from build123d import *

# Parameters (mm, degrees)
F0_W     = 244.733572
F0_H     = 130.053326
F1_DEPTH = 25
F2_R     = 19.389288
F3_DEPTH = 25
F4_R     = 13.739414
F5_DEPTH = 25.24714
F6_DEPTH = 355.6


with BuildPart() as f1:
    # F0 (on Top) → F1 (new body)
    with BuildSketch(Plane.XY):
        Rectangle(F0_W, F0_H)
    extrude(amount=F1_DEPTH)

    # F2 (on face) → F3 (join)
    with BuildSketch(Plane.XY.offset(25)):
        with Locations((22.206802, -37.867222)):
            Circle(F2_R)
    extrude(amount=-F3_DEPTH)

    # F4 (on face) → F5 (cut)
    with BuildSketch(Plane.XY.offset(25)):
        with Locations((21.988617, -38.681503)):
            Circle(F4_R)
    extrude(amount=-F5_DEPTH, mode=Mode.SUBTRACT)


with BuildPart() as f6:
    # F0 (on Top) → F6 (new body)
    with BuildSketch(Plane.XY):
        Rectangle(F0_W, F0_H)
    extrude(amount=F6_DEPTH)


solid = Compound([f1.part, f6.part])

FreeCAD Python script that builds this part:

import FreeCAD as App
import Part
import Sketcher


def add_polygon(sketch, points):
    """Adds a closed chain of lines whose ends are joined by coincident constraints."""
    first, n = sketch.GeometryCount, len(points)
    for a, b in zip(points, points[1:] + points[:1]):
        sketch.addGeometry(Part.LineSegment(App.Vector(*a, 0), App.Vector(*b, 0)), False)
    for i in range(n):
        sketch.addConstraint(Sketcher.Constraint("Coincident", first + i, 2, first + (i + 1) % n, 1))

doc = App.newDocument("Part")
body = doc.addObject("PartDesign::Body", "Body")

sketch1 = body.newObject("Sketcher::SketchObject", "Sketch")
sketch1.AttachmentSupport = (doc.getObject("XY_Plane"), [""])
sketch1.MapMode = "FlatFace"
add_polygon(sketch1, [(-122.366786, 65.026663), (-122.366786, -65.026663), (122.366786, -65.026663), (122.366786, 65.026663)])
sketch1.addConstraint([
    Sketcher.Constraint("Vertical", 0),
    Sketcher.Constraint("Horizontal", 1),
    Sketcher.Constraint("Vertical", 2),
    Sketcher.Constraint("Horizontal", 3),
    Sketcher.Constraint("Symmetric", 0, 2, 2, 2, -1, 1),
    Sketcher.Constraint("DistanceX", 1, 1, 1, 2, 244.733572),
    Sketcher.Constraint("DistanceY", 0, 2, 0, 1, 130.053326),
])
pad1 = body.newObject("PartDesign::Pad", "Pad")
pad1.Profile = sketch1
pad1.Length = 25

sketch2 = body.newObject("Sketcher::SketchObject", "Sketch001")
sketch2.AttachmentSupport = (doc.getObject("XY_Plane"), [""])
sketch2.MapMode = "FlatFace"
sketch2.AttachmentOffset = App.Placement(App.Vector(0, 0, 25), App.Rotation())
sketch2.addGeometry(Part.Circle(App.Vector(22.206802, -37.867222, 0), App.Vector(0, 0, 1), 19.389288), False)
sketch2.addConstraint([
    Sketcher.Constraint("Diameter", 0, 38.778576),
    Sketcher.Constraint("DistanceX", -1, 1, 0, 3, 22.206802),
    Sketcher.Constraint("DistanceY", 0, 3, -1, 1, 37.867222),
])
pad2 = body.newObject("PartDesign::Pad", "Pad001")
pad2.Profile = sketch2
pad2.Length = 25
pad2.Reversed = True

sketch3 = body.newObject("Sketcher::SketchObject", "Sketch002")
sketch3.AttachmentSupport = (doc.getObject("XY_Plane"), [""])
sketch3.MapMode = "FlatFace"
sketch3.AttachmentOffset = App.Placement(App.Vector(0, 0, 25), App.Rotation())
sketch3.addGeometry(Part.Circle(App.Vector(21.988617, -38.681503, 0), App.Vector(0, 0, 1), 13.739414), False)
sketch3.addConstraint([
    Sketcher.Constraint("Diameter", 0, 27.478828),
    Sketcher.Constraint("DistanceX", -1, 1, 0, 3, 21.988617),
    Sketcher.Constraint("DistanceY", 0, 3, -1, 1, 38.681503),
])
pocket1 = body.newObject("PartDesign::Pocket", "Pocket")
pocket1.Profile = sketch3
pocket1.Length = 25.24714
body2 = doc.addObject("PartDesign::Body", "Body001")

sketch4 = body2.newObject("Sketcher::SketchObject", "Sketch003")
sketch4.AttachmentSupport = (doc.getObject("XY_Plane001"), [""])
sketch4.MapMode = "FlatFace"
add_polygon(sketch4, [(-122.366786, 65.026663), (-122.366786, -65.026663), (122.366786, -65.026663), (122.366786, 65.026663)])
sketch4.addConstraint([
    Sketcher.Constraint("Vertical", 0),
    Sketcher.Constraint("Horizontal", 1),
    Sketcher.Constraint("Vertical", 2),
    Sketcher.Constraint("Horizontal", 3),
    Sketcher.Constraint("Symmetric", 0, 2, 2, 2, -1, 1),
    Sketcher.Constraint("DistanceX", 1, 1, 1, 2, 244.733572),
    Sketcher.Constraint("DistanceY", 0, 2, 0, 1, 130.053326),
])
pad3 = body2.newObject("PartDesign::Pad", "Pad002")
pad3.Profile = sketch4
pad3.Length = 355.6

doc.recompute()
